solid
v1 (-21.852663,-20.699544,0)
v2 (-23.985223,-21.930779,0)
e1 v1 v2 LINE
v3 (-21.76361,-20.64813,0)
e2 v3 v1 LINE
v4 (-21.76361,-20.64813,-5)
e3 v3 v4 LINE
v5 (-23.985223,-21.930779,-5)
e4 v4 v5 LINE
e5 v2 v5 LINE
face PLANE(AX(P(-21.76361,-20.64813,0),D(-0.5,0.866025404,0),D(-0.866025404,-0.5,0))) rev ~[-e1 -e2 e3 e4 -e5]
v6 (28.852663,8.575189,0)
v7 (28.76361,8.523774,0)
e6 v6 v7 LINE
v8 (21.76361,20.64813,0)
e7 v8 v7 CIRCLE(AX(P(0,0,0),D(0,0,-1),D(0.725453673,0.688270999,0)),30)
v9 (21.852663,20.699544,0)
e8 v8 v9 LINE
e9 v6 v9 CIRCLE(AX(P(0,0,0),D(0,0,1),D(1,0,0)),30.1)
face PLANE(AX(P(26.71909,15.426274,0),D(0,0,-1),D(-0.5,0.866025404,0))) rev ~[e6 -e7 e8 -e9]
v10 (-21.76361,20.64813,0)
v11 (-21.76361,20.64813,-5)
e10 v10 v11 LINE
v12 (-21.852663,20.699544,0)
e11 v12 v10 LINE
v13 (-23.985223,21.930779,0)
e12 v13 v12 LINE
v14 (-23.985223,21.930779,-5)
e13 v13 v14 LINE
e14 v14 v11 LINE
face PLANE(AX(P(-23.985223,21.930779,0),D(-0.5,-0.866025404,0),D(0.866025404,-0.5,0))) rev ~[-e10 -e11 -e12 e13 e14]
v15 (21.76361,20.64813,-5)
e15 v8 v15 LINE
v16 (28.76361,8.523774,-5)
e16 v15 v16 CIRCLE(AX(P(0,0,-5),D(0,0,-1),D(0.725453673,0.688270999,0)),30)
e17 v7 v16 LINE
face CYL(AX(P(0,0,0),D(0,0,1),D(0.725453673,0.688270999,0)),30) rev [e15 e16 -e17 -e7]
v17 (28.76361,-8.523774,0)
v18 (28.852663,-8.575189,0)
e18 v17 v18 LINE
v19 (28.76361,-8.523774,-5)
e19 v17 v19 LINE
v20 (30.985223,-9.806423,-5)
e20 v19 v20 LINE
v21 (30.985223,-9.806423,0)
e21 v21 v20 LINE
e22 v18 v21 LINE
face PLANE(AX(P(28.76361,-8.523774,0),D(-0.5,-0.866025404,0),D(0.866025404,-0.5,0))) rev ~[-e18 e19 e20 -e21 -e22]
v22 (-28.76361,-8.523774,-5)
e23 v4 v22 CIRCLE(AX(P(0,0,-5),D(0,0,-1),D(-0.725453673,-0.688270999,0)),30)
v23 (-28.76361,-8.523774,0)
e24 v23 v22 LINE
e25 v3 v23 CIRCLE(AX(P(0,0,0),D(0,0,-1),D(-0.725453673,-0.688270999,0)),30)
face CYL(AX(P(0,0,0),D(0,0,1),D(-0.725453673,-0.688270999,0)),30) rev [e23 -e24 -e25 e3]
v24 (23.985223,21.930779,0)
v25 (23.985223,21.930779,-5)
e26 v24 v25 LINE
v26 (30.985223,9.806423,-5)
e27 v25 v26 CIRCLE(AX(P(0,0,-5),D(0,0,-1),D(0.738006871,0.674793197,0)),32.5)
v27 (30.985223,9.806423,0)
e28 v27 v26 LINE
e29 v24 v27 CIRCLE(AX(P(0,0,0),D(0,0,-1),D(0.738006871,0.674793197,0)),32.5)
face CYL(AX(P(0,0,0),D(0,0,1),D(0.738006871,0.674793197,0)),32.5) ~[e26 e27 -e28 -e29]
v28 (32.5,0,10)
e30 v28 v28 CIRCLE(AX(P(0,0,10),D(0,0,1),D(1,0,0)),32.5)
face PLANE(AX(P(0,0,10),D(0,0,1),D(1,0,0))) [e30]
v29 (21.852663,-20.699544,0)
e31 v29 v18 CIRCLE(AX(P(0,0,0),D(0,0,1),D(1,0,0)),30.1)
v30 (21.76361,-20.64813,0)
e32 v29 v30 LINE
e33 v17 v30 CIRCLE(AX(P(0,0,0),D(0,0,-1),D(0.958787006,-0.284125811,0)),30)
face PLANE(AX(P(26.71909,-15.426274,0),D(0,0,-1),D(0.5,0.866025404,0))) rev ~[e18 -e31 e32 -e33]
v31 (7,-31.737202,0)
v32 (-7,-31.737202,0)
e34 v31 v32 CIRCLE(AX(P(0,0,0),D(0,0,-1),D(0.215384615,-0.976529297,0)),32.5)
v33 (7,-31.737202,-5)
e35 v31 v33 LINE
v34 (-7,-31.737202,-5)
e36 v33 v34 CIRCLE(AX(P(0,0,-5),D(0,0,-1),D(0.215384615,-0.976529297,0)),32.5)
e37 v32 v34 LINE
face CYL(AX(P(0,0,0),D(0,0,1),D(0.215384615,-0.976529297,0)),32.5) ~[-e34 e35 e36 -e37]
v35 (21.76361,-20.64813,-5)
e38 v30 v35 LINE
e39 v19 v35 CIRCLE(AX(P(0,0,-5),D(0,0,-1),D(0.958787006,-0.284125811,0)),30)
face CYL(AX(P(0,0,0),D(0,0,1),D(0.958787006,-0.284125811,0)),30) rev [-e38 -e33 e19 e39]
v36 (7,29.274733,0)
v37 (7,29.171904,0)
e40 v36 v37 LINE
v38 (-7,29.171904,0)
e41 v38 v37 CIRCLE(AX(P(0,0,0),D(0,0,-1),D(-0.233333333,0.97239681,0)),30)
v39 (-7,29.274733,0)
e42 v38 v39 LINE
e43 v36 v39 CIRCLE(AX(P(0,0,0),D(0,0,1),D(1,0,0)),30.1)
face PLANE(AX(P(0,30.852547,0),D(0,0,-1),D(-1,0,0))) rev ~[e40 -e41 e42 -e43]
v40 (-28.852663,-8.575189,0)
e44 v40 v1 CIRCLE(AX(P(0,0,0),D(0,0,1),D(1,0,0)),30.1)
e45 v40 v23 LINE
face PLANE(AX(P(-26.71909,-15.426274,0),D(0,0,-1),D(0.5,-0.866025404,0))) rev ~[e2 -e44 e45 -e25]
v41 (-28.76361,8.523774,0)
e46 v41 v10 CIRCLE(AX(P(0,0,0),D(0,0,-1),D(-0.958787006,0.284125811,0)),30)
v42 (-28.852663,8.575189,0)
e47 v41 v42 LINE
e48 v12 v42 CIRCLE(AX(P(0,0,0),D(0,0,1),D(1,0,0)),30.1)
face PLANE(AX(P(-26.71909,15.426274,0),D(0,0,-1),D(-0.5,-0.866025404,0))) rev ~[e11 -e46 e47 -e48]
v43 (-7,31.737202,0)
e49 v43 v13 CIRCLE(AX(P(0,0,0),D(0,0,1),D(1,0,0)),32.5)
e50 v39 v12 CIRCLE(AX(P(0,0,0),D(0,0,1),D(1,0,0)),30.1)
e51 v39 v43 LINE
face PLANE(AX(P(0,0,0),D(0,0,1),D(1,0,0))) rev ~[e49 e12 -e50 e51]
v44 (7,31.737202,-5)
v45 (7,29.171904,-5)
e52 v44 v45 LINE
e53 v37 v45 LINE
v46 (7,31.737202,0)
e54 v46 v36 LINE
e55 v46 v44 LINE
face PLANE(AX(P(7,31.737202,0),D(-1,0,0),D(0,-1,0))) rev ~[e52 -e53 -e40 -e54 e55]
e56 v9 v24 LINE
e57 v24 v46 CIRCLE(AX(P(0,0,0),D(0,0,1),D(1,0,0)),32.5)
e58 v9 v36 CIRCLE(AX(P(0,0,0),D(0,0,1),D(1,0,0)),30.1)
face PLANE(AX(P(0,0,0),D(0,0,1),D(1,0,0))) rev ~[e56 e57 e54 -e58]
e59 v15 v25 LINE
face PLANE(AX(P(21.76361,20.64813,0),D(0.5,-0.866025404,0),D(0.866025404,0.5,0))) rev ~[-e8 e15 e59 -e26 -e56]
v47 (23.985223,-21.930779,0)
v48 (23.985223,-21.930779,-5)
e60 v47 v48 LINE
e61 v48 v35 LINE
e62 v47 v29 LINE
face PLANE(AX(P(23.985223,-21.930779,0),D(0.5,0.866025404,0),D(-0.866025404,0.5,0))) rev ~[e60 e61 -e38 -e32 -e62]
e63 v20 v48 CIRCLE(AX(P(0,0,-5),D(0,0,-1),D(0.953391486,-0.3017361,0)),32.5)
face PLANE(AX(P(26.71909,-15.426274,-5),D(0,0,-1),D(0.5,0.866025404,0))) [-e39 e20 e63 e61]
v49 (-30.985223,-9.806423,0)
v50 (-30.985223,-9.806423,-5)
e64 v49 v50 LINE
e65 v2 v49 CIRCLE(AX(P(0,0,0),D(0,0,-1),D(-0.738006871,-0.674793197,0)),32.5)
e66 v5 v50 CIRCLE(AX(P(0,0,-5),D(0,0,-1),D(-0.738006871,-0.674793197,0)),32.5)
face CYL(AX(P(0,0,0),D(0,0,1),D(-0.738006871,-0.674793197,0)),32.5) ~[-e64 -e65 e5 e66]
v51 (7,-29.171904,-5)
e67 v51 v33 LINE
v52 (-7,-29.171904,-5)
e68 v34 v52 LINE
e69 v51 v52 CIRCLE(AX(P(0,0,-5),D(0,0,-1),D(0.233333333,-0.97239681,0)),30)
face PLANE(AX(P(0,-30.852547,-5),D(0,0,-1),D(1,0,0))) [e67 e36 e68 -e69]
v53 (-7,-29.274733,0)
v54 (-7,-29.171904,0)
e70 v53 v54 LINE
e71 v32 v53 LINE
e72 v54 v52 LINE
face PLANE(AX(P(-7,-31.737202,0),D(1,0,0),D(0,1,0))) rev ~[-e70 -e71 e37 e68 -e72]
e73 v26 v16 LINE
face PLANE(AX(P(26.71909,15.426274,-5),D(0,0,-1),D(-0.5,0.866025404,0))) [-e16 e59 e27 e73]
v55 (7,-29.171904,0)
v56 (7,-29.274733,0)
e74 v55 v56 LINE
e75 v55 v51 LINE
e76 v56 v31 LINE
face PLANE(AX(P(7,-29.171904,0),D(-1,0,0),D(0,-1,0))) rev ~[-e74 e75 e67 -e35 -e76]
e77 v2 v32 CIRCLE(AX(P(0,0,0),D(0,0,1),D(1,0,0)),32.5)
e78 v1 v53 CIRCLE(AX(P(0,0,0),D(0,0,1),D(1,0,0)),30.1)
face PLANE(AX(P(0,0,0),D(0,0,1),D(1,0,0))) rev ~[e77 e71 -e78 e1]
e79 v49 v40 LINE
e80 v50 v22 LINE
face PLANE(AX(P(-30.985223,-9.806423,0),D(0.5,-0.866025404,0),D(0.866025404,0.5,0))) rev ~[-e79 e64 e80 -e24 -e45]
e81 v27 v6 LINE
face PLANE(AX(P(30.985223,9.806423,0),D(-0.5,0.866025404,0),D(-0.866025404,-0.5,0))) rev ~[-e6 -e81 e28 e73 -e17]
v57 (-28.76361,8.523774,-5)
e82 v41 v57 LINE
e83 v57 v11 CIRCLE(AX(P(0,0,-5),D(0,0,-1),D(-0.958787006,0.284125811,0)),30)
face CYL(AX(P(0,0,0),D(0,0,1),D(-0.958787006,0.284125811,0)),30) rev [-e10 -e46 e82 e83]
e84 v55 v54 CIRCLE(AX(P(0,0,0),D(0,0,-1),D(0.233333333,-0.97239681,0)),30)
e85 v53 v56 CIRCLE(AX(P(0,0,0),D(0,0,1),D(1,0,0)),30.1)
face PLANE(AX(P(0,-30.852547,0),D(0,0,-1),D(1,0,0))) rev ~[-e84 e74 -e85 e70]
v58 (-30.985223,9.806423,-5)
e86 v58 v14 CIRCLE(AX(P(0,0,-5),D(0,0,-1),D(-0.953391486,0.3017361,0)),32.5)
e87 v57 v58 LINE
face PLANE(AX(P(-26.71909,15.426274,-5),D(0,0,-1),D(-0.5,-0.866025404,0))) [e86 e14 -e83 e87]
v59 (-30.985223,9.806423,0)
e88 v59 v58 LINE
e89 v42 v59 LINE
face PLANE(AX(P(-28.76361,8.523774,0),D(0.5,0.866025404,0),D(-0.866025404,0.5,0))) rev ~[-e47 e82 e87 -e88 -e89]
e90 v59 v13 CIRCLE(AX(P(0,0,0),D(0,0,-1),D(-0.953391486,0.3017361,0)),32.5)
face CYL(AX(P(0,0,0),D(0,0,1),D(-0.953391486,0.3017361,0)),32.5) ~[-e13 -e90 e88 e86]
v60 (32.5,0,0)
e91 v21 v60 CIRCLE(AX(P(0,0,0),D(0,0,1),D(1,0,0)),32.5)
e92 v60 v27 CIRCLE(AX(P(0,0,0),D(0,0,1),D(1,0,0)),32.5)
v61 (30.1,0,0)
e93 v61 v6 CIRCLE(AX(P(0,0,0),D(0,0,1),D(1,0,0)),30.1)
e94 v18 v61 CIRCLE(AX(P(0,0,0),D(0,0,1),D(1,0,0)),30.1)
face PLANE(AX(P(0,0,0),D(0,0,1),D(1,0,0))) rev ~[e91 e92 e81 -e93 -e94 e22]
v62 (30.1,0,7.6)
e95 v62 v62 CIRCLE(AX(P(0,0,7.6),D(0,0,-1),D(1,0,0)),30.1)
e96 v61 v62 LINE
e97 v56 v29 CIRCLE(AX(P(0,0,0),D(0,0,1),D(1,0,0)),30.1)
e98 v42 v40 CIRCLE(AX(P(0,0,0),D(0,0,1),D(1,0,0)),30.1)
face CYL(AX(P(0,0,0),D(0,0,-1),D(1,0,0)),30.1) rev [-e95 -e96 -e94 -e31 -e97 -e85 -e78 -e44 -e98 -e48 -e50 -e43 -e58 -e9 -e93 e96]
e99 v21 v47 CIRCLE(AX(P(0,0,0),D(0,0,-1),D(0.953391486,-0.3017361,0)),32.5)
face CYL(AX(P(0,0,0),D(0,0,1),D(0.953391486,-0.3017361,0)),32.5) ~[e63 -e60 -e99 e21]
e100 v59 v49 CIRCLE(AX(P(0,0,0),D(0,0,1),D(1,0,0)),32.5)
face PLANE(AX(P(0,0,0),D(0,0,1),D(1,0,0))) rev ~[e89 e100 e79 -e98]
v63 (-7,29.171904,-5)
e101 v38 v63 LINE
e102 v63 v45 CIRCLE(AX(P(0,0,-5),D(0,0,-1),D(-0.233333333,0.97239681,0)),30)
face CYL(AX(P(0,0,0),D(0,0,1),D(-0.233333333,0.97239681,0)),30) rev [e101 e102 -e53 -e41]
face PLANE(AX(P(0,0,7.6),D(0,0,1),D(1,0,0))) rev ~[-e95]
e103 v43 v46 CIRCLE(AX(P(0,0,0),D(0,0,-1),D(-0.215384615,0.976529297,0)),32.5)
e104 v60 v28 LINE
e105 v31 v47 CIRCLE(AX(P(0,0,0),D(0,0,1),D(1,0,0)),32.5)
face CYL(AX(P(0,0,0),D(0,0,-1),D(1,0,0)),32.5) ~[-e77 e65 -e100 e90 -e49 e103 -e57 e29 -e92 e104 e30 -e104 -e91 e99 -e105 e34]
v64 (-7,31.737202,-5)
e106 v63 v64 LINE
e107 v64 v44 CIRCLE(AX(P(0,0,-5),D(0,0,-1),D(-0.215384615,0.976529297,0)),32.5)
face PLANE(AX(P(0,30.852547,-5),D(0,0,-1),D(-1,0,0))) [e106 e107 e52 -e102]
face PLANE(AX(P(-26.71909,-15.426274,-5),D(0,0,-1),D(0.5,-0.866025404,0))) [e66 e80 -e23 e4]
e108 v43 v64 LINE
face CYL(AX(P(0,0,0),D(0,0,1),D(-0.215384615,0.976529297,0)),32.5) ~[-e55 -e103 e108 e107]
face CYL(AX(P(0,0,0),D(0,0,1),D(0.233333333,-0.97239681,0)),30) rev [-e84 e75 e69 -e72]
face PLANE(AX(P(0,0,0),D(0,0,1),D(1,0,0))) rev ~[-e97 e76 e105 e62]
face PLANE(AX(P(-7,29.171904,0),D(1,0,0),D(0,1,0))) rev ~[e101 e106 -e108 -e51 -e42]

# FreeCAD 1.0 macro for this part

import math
import FreeCAD as App
import Part
import Sketcher


def faces_at(feature, points):
    """Names of the faces that lie closest to the given points."""
    faces = feature.Shape.Faces
    near = lambda p: min(range(len(faces)), key=lambda i: faces[i].distToShape(Part.Vertex(*p))[0])
    return sorted({f"Face{near(p) + 1}" for p in points})

doc = App.newDocument("Part")
body = doc.addObject("PartDesign::Body", "Body")

# Sketch on XY plane
sketch1 = doc.addObject("Sketcher::SketchObject", "Sketch")
body.addObject(sketch1)
sketch1.AttachmentSupport = (doc.XY_Plane, [""])
sketch1.MapMode = "FlatFace"
sketch1.addGeometry(Part.Circle(App.Vector(0, 0, 0), App.Vector(0, 0, 1), 32), False)
sketch1.addConstraint(Sketcher.Constraint("Coincident", 0, 3, -1, 1))
sketch1.addConstraint(Sketcher.Constraint("Diameter", 0, 65.0))
pad1 = doc.addObject("PartDesign::Pad", "Pad")
body.addObject(pad1)
pad1.Profile = sketch1
pad1.Length = 10
doc.recompute()

thickness = doc.addObject("PartDesign::Thickness", "Thickness")
body.addObject(thickness)
thickness.Base = (pad1, faces_at(pad1, [(0, 0, 0)]))
thickness.Value = 2.4
thickness.Reversed = True
thickness.Join = "Arc"

# Sketch on XY plane
sketch2 = doc.addObject("Sketcher::SketchObject", "Sketch001")
body.addObject(sketch2)
sketch2.AttachmentSupport = (doc.XY_Plane, [""])
sketch2.MapMode = "FlatFace"
sketch2.addGeometry(Part.LineSegment(App.Vector(-7, -31.7, 0), App.Vector(-7, -29.2, 0)), False)
sketch2.addGeometry(Part.ArcOfCircle(Part.Circle(App.Vector(0, 0, 0), App.Vector(0, 0, 1), 30), math.radians(-103), math.radians(-77)), False)
sketch2.addGeometry(Part.LineSegment(App.Vector(7, -29.2, 0), App.Vector(7, -31.7, 0)), False)
sketch2.addGeometry(Part.ArcOfCircle(Part.Circle(App.Vector(0, 0, 0), App.Vector(0, 0, 1), 32.5), math.radians(-102), math.radians(-78)), False)
sketch2.addConstraint(Sketcher.Constraint("Coincident", 0, 2, 1, 1))
sketch2.addConstraint(Sketcher.Constraint("Coincident", 1, 2, 2, 1))
sketch2.addConstraint(Sketcher.Constraint("Coincident", 2, 2, 3, 2))
sketch2.addConstraint(Sketcher.Constraint("Coincident", 3, 1, 0, 1))
sketch2.addConstraint(Sketcher.Constraint("Vertical", 0))
sketch2.addConstraint(Sketcher.Constraint("Vertical", 2))
sketch2.addConstraint(Sketcher.Constraint("Coincident", 1, 3, -1, 1))
sketch2.addConstraint(Sketcher.Constraint("Coincident", 3, 3, -1, 1))
sketch2.addConstraint(Sketcher.Constraint("Horizontal", 0, 2, 1, 2))
sketch2.addConstraint(Sketcher.Constraint("Radius", 1, 30.0))
sketch2.addConstraint(Sketcher.Constraint("Radius", 3, 32.5))
sketch2.addConstraint(Sketcher.Constraint("DistanceX", 0, 2, -1, 1, 7.0))
pad2 = doc.addObject("PartDesign::Pad", "Pad001")
body.addObject(pad2)
pad2.Profile = sketch2
pad2.Length = 5
pad2.Reversed = True
doc.recompute()

polarpattern = doc.addObject("PartDesign::PolarPattern", "PolarPattern")
body.addObject(polarpattern)
polarpattern.Originals = [pad2]
polarpattern.Axis = (doc.Z_Axis, [""])
polarpattern.Angle = 360
polarpattern.Occurrences = 6
body.Tip = polarpattern

doc.recompute()
